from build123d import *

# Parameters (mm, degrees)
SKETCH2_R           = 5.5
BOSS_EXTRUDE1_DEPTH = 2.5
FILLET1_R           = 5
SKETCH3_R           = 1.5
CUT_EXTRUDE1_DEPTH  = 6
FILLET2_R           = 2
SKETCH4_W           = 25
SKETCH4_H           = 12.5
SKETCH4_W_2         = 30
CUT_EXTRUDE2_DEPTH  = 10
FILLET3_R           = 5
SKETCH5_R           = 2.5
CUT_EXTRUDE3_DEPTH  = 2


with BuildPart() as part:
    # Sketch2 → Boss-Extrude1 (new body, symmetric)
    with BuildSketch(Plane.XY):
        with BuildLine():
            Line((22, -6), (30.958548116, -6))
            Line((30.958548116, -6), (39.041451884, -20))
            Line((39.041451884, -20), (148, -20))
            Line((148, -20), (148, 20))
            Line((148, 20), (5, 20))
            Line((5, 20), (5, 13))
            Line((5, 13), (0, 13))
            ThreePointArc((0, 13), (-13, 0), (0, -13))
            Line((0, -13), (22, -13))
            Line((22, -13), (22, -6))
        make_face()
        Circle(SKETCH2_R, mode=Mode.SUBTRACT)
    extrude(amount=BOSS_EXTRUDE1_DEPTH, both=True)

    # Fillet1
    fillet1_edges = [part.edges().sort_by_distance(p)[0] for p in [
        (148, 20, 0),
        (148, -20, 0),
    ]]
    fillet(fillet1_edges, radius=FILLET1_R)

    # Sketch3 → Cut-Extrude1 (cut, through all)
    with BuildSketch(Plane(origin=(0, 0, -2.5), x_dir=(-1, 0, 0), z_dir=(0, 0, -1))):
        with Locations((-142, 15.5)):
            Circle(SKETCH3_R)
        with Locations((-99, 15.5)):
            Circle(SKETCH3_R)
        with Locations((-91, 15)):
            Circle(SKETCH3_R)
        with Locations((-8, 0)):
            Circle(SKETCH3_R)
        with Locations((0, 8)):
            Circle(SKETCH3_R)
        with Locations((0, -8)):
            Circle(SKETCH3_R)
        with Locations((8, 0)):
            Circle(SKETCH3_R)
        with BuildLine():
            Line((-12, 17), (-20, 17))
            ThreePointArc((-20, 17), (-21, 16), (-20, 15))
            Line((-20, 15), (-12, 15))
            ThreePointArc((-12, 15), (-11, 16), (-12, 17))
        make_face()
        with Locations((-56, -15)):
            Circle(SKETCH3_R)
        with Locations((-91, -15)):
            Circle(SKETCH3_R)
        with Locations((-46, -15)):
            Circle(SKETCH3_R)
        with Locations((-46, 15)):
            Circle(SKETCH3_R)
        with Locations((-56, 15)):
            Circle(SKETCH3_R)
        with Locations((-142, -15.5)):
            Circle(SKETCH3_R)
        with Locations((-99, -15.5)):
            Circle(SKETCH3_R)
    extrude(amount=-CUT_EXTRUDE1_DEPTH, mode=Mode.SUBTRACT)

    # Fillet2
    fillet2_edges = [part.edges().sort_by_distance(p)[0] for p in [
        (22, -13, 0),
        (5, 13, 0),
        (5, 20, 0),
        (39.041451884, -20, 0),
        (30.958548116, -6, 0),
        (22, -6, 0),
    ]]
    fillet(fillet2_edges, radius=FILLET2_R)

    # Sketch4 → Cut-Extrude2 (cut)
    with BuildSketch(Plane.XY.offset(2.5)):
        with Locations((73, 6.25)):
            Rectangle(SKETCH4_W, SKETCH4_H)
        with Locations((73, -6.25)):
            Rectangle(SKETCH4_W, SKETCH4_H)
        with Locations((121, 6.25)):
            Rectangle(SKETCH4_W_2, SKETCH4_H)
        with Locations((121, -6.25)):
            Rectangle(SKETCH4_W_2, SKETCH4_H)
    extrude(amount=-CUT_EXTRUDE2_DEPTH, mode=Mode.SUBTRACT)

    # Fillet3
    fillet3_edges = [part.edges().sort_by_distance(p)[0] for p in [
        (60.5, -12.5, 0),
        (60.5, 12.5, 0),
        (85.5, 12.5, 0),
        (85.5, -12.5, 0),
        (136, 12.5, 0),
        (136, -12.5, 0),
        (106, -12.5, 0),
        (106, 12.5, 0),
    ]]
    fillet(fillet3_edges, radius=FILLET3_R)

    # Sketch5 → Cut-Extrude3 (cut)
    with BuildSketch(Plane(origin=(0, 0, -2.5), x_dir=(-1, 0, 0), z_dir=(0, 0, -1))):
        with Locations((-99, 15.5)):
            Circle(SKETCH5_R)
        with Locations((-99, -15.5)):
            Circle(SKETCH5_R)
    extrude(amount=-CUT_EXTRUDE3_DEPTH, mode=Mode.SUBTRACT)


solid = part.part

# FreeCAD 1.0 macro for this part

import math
import FreeCAD as App
import Part
import Sketcher

V = App.Vector
Q = App.Units.Quantity


def edges_at(feature, points):
    """Names of the edges that pass closest to the given points."""
    edges = feature.Shape.Edges
    near = lambda p: min(range(len(edges)), key=lambda i: edges[i].distToShape(Part.Vertex(*p))[0])
    return sorted({f"Edge{near(p) + 1}" for p in points})

doc = App.newDocument("Part")
params = doc.addObject("Spreadsheet::Sheet", "Params")
for row, (alias, value) in enumerate([
    ("sketch1_diameter", "11 mm"),
    ("sketch1_radius", "13 mm"),
    ("sketch1_width", "143 mm"),
    ("sketch1_width2", "5 mm"),
    ("sketch1_width3", "22 mm"),
    ("pad1_length", "5 mm"),
    ("fillet_radius", "5 mm"),
    ("sketch2_diameter", "3 mm"),
    ("sketch2_radius", "1 mm"),
    ("sketch2_width", "8 mm"),
    ("fillet2_radius", "2 mm"),
    ("sketch3_width", "25 mm"),
    ("sketch3_width2", "30 mm"),
    ("pocket2_length", "10 mm"),
    ("fillet3_radius", "5 mm"),
    ("sketch4_diameter", "5 mm"),
    ("pocket3_length", "2 mm"),
], start=1):
    params.set(f"A{row}", alias)
    params.set(f"B{row}", "=" + value)
    params.setAlias(f"B{row}", alias)

body = doc.addObject("PartDesign::Body", "Body")

sketch1 = body.newObject("Sketcher::SketchObject", "Sketch")
sketch1.AttachmentSupport = (doc.getObject("XY_Plane"), [""])
sketch1.MapMode = "FlatFace"
sketch1.addGeometry([
    Part.LineSegment(V(22, -6, 0), V(31, -6, 0)),
    Part.LineSegment(V(31, -6, 0), V(39, -20, 0)),
    Part.LineSegment(V(39, -20, 0), V(148, -20, 0)),
    Part.LineSegment(V(148, -20, 0), V(148, 20, 0)),
    Part.LineSegment(V(148, 20, 0), V(5, 20, 0)),
    Part.LineSegment(V(5, 20, 0), V(5, 13, 0)),
    Part.LineSegment(V(5, 13, 0), V(0, 13, 0)),
    Part.ArcOfCircle(Part.Circle(V(0, 0, 0), V(0, 0, 1), 13), math.radians(90), math.radians(270)),
    Part.LineSegment(V(0, -13, 0), V(22, -13, 0)),
    Part.LineSegment(V(22, -13, 0), V(22, -6, 0)),
    Part.Circle(V(0, 0, 0), V(0, 0, 1), 6),
], False)
sketch1.addConstraint([
    Sketcher.Constraint("Coincident", 0, 2, 1, 1),
    Sketcher.Constraint("Coincident", 1, 2, 2, 1),
    Sketcher.Constraint("Coincident", 2, 2, 3, 1),
    Sketcher.Constraint("Coincident", 3, 2, 4, 1),
    Sketcher.Constraint("Coincident", 4, 2, 5, 1),
    Sketcher.Constraint("Coincident", 5, 2, 6, 1),
    Sketcher.Constraint("Tangent", 6, 2, 7, 1),
    Sketcher.Constraint("Tangent", 7, 2, 8, 1),
    Sketcher.Constraint("Coincident", 8, 2, 9, 1),
    Sketcher.Constraint("Coincident", 9, 2, 0, 1),
    Sketcher.Constraint("Horizontal", 0),
    Sketcher.Constraint("Horizontal", 2),
    Sketcher.Constraint("Vertical", 3),
    Sketcher.Constraint("Horizontal", 4),
    Sketcher.Constraint("Vertical", 5),
    Sketcher.Constraint("Horizontal", 6),
    Sketcher.Constraint("Horizontal", 8),
    Sketcher.Constraint("Vertical", 9),
    Sketcher.Constraint("Coincident", 7, 3, -1, 1),
    Sketcher.Constraint("Coincident", 10, 3, -1, 1),
    Sketcher.Constraint("Equal", 5, 9),
    Sketcher.Constraint("Diameter", 10, Q("11 mm")),
    Sketcher.Constraint("Radius", 7, Q("13 mm")),
    Sketcher.Constraint("DistanceX", 4, 2, 4, 1, Q("143 mm")),
    Sketcher.Constraint("DistanceX", 6, 2, 6, 1, Q("5 mm")),
    Sketcher.Constraint("DistanceX", 8, 1, 8, 2, Q("22 mm")),
    Sketcher.Constraint("DistanceY", 3, 1, 3, 2, Q("40 mm")),
    Sketcher.Constraint("DistanceY", 5, 2, 5, 1, Q("7 mm")),
    Sketcher.Constraint("Angle", 1, Q("-60 deg")),
    Sketcher.Constraint("DistanceX", 0, 1, 0, 2, Q("8.958548 mm")),
])
sketch1.setExpression("Constraints[21]", "Params.sketch1_diameter")
sketch1.setExpression("Constraints[22]", "Params.sketch1_radius")
sketch1.setExpression("Constraints[23]", "Params.sketch1_width")
sketch1.setExpression("Constraints[24]", "Params.sketch1_width2")
sketch1.setExpression("Constraints[25]", "Params.sketch1_width3")
pad1 = body.newObject("PartDesign::Pad", "Pad")
pad1.Profile = sketch1
pad1.setExpression("Length", "Params.pad1_length")
pad1.Midplane = True
doc.recompute()

fillet = body.newObject("PartDesign::Fillet", "Fillet")
fillet.Base = (pad1, edges_at(pad1, [(148, 20, 0), (148, -20, 0)]))
fillet.setExpression("Radius", "Params.fillet_radius")

sketch2 = body.newObject("Sketcher::SketchObject", "Sketch001")
sketch2.AttachmentSupport = (doc.getObject("XY_Plane"), [""])
sketch2.MapMode = "FlatFace"
sketch2.AttachmentOffset = App.Placement(V(0, 0, -2.5), App.Rotation())
sketch2.addGeometry([
    Part.Circle(V(142, 15.5, 0), V(0, 0, 1), 1.5),
    Part.Circle(V(99, 15.5, 0), V(0, 0, 1), 1.5),
    Part.Circle(V(91, 15, 0), V(0, 0, 1), 1.5),
    Part.Circle(V(8, 0, 0), V(0, 0, 1), 1.5),
    Part.Circle(V(0, 8, 0), V(0, 0, 1), 1.5),
    Part.Circle(V(0, -8, 0), V(0, 0, 1), 1.5),
    Part.Circle(V(-8, 0, 0), V(0, 0, 1), 1.5),
    Part.LineSegment(V(12, 17, 0), V(20, 17, 0)),
    Part.ArcOfCircle(Part.Circle(V(20, 16, 0), V(0, 0, 1), 1), math.radians(-90), math.radians(90)),
    Part.LineSegment(V(20, 15, 0), V(12, 15, 0)),
    Part.ArcOfCircle(Part.Circle(V(12, 16, 0), V(0, 0, 1), 1), math.radians(90), math.radians(270)),
    Part.Circle(V(56, -15, 0), V(0, 0, 1), 1.5),
    Part.Circle(V(91, -15, 0), V(0, 0, 1), 1.5),
    Part.Circle(V(46, -15, 0), V(0, 0, 1), 1.5),
    Part.Circle(V(46, 15, 0), V(0, 0, 1), 1.5),
    Part.Circle(V(56, 15, 0), V(0, 0, 1), 1.5),
    Part.Circle(V(142, -15.5, 0), V(0, 0, 1), 1.5),
    Part.Circle(V(99, -15.5, 0), V(0, 0, 1), 1.5),
], False)
sketch2.addConstraint([
    Sketcher.Constraint("Tangent", 7, 2, 8, 2),
    Sketcher.Constraint("Tangent", 8, 1, 9, 1),
    Sketcher.Constraint("Tangent", 9, 2, 10, 2),
    Sketcher.Constraint("Tangent", 10, 1, 7, 1),
    Sketcher.Constraint("Horizontal", 7),
    Sketcher.Constraint("Horizontal", 9),
    Sketcher.Constraint("Equal", 0, 1),
    Sketcher.Constraint("Equal", 1, 2),
    Sketcher.Constraint("Equal", 2, 3),
    Sketcher.Constraint("Equal", 3, 4),
    Sketcher.Constraint("Equal", 4, 5),
    Sketcher.Constraint("Equal", 5, 6),
    Sketcher.Constraint("Equal", 6, 11),
    Sketcher.Constraint("Equal", 11, 12),
    Sketcher.Constraint("Equal", 12, 13),
    Sketcher.Constraint("Equal", 13, 14),
    Sketcher.Constraint("Equal", 14, 15),
    Sketcher.Constraint("Equal", 15, 16),
    Sketcher.Constraint("Equal", 16, 17),
    Sketcher.Constraint("Symmetric", 4, 3, 5, 3, -1, 1),
    Sketcher.Constraint("Symmetric", 3, 3, 6, 3, -1, 1),
    Sketcher.Constraint("Symmetric", 2, 3, 12, 3, -1),
    Sketcher.Constraint("Symmetric", 13, 3, 14, 3, -1),
    Sketcher.Constraint("Symmetric", 11, 3, 15, 3, -1),
    Sketcher.Constraint("Symmetric", 0, 3, 16, 3, -1),
    Sketcher.Constraint("Symmetric", 1, 3, 17, 3, -1),
    Sketcher.Constraint("PointOnObject", 3, 3, -1),
    Sketcher.Constraint("PointOnObject", 4, 3, -2),
    Sketcher.Constraint("Horizontal", 0, 3, 1, 3),
    Sketcher.Constraint("Horizontal", 11, 3, 12, 3),
    Sketcher.Constraint("Horizontal", 12, 3, 13, 3),
    Sketcher.Constraint("Horizontal", 15, 3, 8, 1),
    Sketcher.Constraint("Diameter", 0, Q("3 mm")),
    Sketcher.Constraint("Radius", 8, Q("1 mm")),
    Sketcher.Constraint("DistanceX", 7, 1, 7, 2, Q("8 mm")),
    Sketcher.Constraint("DistanceX", -1, 1, 0, 3, Q("142 mm")),
    Sketcher.Constraint("DistanceX", -1, 1, 1, 3, Q("99 mm")),
    Sketcher.Constraint("DistanceX", -1, 1, 2, 3, Q("91 mm")),
    Sketcher.Constraint("DistanceY", -1, 1, 2, 3, Q("15 mm")),
    Sketcher.Constraint("DistanceX", -1, 1, 3, 3, Q("8 mm")),
    Sketcher.Constraint("DistanceY", -1, 1, 4, 3, Q("8 mm")),
    Sketcher.Constraint("DistanceX", -1, 1, 8, 3, Q("20 mm")),
    Sketcher.Constraint("DistanceX", -1, 1, 11, 3, Q("56 mm")),
    Sketcher.Constraint("DistanceX", -1, 1, 13, 3, Q("46 mm")),
    Sketcher.Constraint("DistanceY", 16, 3, 0, 3, Q("31 mm")),
])
sketch2.setExpression("Constraints[32]", "Params.sketch2_diameter")
sketch2.setExpression("Constraints[33]", "Params.sketch2_radius")
sketch2.setExpression("Constraints[34]", "Params.sketch2_width")
pocket1 = body.newObject("PartDesign::Pocket", "Pocket")
pocket1.Profile = sketch2
pocket1.Type = "ThroughAll"
pocket1.Reversed = True
doc.recompute()

fillet2 = body.newObject("PartDesign::Fillet", "Fillet001")
fillet2.Base = (pocket1, edges_at(pocket1, [
    (22, -13, 0),
    (5, 13, 0),
    (5, 20, 0),
    (39.041, -20, 0),
    (30.959, -6, 0),
    (22, -6, 0),
]))
fillet2.setExpression("Radius", "Params.fillet2_radius")

sketch3 = body.newObject("Sketcher::SketchObject", "Sketch002")
sketch3.AttachmentSupport = (doc.getObject("XY_Plane"), [""])
sketch3.MapMode = "FlatFace"
sketch3.AttachmentOffset = App.Placement(V(0, 0, 2.5), App.Rotation())
sketch3.addGeometry([
    Part.LineSegment(V(60, 12, 0), V(60, -12, 0)),
    Part.LineSegment(V(60, -12, 0), V(86, -12, 0)),
    Part.LineSegment(V(86, -12, 0), V(86, 12, 0)),
    Part.LineSegment(V(86, 12, 0), V(60, 12, 0)),
    Part.LineSegment(V(106, 12, 0), V(106, -12, 0)),
    Part.LineSegment(V(106, -12, 0), V(136, -12, 0)),
    Part.LineSegment(V(136, -12, 0), V(136, 12, 0)),
    Part.LineSegment(V(136, 12, 0), V(106, 12, 0)),
], False)
sketch3.addConstraint([
    Sketcher.Constraint("Coincident", 0, 2, 1, 1),
    Sketcher.Constraint("Coincident", 1, 2, 2, 1),
    Sketcher.Constraint("Coincident", 2, 2, 3, 1),
    Sketcher.Constraint("Coincident", 3, 2, 0, 1),
    Sketcher.Constraint("Coincident", 4, 2, 5, 1),
    Sketcher.Constraint("Coincident", 5, 2, 6, 1),
    Sketcher.Constraint("Coincident", 6, 2, 7, 1),
    Sketcher.Constraint("Coincident", 7, 2, 4, 1),
    Sketcher.Constraint("Vertical", 0),
    Sketcher.Constraint("Horizontal", 1),
    Sketcher.Constraint("Vertical", 2),
    Sketcher.Constraint("Horizontal", 3),
    Sketcher.Constraint("Vertical", 4),
    Sketcher.Constraint("Horizontal", 5),
    Sketcher.Constraint("Vertical", 6),
    Sketcher.Constraint("Horizontal", 7),
    Sketcher.Constraint("Horizontal", 1, 2, 4, 2),
    Sketcher.Constraint("Horizontal", 3, 2, 6, 2),
    Sketcher.Constraint("Equal", 3, 0),
    Sketcher.Constraint("DistanceX", 1, 1, 1, 2, Q("25 mm")),
    Sketcher.Constraint("DistanceX", 5, 1, 5, 2, Q("30 mm")),
    Sketcher.Constraint("DistanceX", -1, 1, 4, 2, Q("106 mm")),
    Sketcher.Constraint("DistanceX", -1, 1, 0, 2, Q("60.5 mm")),
    Sketcher.Constraint("DistanceY", 0, 2, -1, 1, Q("12.5 mm")),
])
sketch3.setExpression("Constraints[19]", "Params.sketch3_width")
sketch3.setExpression("Constraints[20]", "Params.sketch3_width2")
pocket2 = body.newObject("PartDesign::Pocket", "Pocket001")
pocket2.Profile = sketch3
pocket2.setExpression("Length", "Params.pocket2_length")
doc.recompute()

fillet3 = body.newObject("PartDesign::Fillet", "Fillet002")
fillet3.Base = (pocket2, edges_at(pocket2, [
    (60.5, -12.5, 0),
    (60.5, 12.5, 0),
    (85.5, 12.5, 0),
    (85.5, -12.5, 0),
    (136, 12.5, 0),
    (136, -12.5, 0),
    (106, -12.5, 0),
    (106, 12.5, 0),
]))
fillet3.setExpression("Radius", "Params.fillet3_radius")

sketch4 = body.newObject("Sketcher::SketchObject", "Sketch003")
sketch4.AttachmentSupport = (doc.getObject("XY_Plane"), [""])
sketch4.MapMode = "FlatFace"
sketch4.AttachmentOffset = App.Placement(V(0, 0, -2.5), App.Rotation())
sketch4.addGeometry([
    Part.Circle(V(99, 15.5, 0), V(0, 0, 1), 2.5),
    Part.Circle(V(99, -15.5, 0), V(0, 0, 1), 2.5),
], False)
sketch4.addConstraint([
    Sketcher.Constraint("Equal", 0, 1),
    Sketcher.Constraint("Symmetric", 0, 3, 1, 3, -1),
    Sketcher.Constraint("Diameter", 0, Q("5 mm")),
    Sketcher.Constraint("DistanceX", -1, 1, 0, 3, Q("99 mm")),
    Sketcher.Constraint("DistanceY", 1, 3, 0, 3, Q("31 mm")),
])
sketch4.setExpression("Constraints[2]", "Params.sketch4_diameter")
pocket3 = body.newObject("PartDesign::Pocket", "Pocket002")
pocket3.Profile = sketch4
pocket3.setExpression("Length", "Params.pocket3_length")
pocket3.Reversed = True

doc.recompute()
